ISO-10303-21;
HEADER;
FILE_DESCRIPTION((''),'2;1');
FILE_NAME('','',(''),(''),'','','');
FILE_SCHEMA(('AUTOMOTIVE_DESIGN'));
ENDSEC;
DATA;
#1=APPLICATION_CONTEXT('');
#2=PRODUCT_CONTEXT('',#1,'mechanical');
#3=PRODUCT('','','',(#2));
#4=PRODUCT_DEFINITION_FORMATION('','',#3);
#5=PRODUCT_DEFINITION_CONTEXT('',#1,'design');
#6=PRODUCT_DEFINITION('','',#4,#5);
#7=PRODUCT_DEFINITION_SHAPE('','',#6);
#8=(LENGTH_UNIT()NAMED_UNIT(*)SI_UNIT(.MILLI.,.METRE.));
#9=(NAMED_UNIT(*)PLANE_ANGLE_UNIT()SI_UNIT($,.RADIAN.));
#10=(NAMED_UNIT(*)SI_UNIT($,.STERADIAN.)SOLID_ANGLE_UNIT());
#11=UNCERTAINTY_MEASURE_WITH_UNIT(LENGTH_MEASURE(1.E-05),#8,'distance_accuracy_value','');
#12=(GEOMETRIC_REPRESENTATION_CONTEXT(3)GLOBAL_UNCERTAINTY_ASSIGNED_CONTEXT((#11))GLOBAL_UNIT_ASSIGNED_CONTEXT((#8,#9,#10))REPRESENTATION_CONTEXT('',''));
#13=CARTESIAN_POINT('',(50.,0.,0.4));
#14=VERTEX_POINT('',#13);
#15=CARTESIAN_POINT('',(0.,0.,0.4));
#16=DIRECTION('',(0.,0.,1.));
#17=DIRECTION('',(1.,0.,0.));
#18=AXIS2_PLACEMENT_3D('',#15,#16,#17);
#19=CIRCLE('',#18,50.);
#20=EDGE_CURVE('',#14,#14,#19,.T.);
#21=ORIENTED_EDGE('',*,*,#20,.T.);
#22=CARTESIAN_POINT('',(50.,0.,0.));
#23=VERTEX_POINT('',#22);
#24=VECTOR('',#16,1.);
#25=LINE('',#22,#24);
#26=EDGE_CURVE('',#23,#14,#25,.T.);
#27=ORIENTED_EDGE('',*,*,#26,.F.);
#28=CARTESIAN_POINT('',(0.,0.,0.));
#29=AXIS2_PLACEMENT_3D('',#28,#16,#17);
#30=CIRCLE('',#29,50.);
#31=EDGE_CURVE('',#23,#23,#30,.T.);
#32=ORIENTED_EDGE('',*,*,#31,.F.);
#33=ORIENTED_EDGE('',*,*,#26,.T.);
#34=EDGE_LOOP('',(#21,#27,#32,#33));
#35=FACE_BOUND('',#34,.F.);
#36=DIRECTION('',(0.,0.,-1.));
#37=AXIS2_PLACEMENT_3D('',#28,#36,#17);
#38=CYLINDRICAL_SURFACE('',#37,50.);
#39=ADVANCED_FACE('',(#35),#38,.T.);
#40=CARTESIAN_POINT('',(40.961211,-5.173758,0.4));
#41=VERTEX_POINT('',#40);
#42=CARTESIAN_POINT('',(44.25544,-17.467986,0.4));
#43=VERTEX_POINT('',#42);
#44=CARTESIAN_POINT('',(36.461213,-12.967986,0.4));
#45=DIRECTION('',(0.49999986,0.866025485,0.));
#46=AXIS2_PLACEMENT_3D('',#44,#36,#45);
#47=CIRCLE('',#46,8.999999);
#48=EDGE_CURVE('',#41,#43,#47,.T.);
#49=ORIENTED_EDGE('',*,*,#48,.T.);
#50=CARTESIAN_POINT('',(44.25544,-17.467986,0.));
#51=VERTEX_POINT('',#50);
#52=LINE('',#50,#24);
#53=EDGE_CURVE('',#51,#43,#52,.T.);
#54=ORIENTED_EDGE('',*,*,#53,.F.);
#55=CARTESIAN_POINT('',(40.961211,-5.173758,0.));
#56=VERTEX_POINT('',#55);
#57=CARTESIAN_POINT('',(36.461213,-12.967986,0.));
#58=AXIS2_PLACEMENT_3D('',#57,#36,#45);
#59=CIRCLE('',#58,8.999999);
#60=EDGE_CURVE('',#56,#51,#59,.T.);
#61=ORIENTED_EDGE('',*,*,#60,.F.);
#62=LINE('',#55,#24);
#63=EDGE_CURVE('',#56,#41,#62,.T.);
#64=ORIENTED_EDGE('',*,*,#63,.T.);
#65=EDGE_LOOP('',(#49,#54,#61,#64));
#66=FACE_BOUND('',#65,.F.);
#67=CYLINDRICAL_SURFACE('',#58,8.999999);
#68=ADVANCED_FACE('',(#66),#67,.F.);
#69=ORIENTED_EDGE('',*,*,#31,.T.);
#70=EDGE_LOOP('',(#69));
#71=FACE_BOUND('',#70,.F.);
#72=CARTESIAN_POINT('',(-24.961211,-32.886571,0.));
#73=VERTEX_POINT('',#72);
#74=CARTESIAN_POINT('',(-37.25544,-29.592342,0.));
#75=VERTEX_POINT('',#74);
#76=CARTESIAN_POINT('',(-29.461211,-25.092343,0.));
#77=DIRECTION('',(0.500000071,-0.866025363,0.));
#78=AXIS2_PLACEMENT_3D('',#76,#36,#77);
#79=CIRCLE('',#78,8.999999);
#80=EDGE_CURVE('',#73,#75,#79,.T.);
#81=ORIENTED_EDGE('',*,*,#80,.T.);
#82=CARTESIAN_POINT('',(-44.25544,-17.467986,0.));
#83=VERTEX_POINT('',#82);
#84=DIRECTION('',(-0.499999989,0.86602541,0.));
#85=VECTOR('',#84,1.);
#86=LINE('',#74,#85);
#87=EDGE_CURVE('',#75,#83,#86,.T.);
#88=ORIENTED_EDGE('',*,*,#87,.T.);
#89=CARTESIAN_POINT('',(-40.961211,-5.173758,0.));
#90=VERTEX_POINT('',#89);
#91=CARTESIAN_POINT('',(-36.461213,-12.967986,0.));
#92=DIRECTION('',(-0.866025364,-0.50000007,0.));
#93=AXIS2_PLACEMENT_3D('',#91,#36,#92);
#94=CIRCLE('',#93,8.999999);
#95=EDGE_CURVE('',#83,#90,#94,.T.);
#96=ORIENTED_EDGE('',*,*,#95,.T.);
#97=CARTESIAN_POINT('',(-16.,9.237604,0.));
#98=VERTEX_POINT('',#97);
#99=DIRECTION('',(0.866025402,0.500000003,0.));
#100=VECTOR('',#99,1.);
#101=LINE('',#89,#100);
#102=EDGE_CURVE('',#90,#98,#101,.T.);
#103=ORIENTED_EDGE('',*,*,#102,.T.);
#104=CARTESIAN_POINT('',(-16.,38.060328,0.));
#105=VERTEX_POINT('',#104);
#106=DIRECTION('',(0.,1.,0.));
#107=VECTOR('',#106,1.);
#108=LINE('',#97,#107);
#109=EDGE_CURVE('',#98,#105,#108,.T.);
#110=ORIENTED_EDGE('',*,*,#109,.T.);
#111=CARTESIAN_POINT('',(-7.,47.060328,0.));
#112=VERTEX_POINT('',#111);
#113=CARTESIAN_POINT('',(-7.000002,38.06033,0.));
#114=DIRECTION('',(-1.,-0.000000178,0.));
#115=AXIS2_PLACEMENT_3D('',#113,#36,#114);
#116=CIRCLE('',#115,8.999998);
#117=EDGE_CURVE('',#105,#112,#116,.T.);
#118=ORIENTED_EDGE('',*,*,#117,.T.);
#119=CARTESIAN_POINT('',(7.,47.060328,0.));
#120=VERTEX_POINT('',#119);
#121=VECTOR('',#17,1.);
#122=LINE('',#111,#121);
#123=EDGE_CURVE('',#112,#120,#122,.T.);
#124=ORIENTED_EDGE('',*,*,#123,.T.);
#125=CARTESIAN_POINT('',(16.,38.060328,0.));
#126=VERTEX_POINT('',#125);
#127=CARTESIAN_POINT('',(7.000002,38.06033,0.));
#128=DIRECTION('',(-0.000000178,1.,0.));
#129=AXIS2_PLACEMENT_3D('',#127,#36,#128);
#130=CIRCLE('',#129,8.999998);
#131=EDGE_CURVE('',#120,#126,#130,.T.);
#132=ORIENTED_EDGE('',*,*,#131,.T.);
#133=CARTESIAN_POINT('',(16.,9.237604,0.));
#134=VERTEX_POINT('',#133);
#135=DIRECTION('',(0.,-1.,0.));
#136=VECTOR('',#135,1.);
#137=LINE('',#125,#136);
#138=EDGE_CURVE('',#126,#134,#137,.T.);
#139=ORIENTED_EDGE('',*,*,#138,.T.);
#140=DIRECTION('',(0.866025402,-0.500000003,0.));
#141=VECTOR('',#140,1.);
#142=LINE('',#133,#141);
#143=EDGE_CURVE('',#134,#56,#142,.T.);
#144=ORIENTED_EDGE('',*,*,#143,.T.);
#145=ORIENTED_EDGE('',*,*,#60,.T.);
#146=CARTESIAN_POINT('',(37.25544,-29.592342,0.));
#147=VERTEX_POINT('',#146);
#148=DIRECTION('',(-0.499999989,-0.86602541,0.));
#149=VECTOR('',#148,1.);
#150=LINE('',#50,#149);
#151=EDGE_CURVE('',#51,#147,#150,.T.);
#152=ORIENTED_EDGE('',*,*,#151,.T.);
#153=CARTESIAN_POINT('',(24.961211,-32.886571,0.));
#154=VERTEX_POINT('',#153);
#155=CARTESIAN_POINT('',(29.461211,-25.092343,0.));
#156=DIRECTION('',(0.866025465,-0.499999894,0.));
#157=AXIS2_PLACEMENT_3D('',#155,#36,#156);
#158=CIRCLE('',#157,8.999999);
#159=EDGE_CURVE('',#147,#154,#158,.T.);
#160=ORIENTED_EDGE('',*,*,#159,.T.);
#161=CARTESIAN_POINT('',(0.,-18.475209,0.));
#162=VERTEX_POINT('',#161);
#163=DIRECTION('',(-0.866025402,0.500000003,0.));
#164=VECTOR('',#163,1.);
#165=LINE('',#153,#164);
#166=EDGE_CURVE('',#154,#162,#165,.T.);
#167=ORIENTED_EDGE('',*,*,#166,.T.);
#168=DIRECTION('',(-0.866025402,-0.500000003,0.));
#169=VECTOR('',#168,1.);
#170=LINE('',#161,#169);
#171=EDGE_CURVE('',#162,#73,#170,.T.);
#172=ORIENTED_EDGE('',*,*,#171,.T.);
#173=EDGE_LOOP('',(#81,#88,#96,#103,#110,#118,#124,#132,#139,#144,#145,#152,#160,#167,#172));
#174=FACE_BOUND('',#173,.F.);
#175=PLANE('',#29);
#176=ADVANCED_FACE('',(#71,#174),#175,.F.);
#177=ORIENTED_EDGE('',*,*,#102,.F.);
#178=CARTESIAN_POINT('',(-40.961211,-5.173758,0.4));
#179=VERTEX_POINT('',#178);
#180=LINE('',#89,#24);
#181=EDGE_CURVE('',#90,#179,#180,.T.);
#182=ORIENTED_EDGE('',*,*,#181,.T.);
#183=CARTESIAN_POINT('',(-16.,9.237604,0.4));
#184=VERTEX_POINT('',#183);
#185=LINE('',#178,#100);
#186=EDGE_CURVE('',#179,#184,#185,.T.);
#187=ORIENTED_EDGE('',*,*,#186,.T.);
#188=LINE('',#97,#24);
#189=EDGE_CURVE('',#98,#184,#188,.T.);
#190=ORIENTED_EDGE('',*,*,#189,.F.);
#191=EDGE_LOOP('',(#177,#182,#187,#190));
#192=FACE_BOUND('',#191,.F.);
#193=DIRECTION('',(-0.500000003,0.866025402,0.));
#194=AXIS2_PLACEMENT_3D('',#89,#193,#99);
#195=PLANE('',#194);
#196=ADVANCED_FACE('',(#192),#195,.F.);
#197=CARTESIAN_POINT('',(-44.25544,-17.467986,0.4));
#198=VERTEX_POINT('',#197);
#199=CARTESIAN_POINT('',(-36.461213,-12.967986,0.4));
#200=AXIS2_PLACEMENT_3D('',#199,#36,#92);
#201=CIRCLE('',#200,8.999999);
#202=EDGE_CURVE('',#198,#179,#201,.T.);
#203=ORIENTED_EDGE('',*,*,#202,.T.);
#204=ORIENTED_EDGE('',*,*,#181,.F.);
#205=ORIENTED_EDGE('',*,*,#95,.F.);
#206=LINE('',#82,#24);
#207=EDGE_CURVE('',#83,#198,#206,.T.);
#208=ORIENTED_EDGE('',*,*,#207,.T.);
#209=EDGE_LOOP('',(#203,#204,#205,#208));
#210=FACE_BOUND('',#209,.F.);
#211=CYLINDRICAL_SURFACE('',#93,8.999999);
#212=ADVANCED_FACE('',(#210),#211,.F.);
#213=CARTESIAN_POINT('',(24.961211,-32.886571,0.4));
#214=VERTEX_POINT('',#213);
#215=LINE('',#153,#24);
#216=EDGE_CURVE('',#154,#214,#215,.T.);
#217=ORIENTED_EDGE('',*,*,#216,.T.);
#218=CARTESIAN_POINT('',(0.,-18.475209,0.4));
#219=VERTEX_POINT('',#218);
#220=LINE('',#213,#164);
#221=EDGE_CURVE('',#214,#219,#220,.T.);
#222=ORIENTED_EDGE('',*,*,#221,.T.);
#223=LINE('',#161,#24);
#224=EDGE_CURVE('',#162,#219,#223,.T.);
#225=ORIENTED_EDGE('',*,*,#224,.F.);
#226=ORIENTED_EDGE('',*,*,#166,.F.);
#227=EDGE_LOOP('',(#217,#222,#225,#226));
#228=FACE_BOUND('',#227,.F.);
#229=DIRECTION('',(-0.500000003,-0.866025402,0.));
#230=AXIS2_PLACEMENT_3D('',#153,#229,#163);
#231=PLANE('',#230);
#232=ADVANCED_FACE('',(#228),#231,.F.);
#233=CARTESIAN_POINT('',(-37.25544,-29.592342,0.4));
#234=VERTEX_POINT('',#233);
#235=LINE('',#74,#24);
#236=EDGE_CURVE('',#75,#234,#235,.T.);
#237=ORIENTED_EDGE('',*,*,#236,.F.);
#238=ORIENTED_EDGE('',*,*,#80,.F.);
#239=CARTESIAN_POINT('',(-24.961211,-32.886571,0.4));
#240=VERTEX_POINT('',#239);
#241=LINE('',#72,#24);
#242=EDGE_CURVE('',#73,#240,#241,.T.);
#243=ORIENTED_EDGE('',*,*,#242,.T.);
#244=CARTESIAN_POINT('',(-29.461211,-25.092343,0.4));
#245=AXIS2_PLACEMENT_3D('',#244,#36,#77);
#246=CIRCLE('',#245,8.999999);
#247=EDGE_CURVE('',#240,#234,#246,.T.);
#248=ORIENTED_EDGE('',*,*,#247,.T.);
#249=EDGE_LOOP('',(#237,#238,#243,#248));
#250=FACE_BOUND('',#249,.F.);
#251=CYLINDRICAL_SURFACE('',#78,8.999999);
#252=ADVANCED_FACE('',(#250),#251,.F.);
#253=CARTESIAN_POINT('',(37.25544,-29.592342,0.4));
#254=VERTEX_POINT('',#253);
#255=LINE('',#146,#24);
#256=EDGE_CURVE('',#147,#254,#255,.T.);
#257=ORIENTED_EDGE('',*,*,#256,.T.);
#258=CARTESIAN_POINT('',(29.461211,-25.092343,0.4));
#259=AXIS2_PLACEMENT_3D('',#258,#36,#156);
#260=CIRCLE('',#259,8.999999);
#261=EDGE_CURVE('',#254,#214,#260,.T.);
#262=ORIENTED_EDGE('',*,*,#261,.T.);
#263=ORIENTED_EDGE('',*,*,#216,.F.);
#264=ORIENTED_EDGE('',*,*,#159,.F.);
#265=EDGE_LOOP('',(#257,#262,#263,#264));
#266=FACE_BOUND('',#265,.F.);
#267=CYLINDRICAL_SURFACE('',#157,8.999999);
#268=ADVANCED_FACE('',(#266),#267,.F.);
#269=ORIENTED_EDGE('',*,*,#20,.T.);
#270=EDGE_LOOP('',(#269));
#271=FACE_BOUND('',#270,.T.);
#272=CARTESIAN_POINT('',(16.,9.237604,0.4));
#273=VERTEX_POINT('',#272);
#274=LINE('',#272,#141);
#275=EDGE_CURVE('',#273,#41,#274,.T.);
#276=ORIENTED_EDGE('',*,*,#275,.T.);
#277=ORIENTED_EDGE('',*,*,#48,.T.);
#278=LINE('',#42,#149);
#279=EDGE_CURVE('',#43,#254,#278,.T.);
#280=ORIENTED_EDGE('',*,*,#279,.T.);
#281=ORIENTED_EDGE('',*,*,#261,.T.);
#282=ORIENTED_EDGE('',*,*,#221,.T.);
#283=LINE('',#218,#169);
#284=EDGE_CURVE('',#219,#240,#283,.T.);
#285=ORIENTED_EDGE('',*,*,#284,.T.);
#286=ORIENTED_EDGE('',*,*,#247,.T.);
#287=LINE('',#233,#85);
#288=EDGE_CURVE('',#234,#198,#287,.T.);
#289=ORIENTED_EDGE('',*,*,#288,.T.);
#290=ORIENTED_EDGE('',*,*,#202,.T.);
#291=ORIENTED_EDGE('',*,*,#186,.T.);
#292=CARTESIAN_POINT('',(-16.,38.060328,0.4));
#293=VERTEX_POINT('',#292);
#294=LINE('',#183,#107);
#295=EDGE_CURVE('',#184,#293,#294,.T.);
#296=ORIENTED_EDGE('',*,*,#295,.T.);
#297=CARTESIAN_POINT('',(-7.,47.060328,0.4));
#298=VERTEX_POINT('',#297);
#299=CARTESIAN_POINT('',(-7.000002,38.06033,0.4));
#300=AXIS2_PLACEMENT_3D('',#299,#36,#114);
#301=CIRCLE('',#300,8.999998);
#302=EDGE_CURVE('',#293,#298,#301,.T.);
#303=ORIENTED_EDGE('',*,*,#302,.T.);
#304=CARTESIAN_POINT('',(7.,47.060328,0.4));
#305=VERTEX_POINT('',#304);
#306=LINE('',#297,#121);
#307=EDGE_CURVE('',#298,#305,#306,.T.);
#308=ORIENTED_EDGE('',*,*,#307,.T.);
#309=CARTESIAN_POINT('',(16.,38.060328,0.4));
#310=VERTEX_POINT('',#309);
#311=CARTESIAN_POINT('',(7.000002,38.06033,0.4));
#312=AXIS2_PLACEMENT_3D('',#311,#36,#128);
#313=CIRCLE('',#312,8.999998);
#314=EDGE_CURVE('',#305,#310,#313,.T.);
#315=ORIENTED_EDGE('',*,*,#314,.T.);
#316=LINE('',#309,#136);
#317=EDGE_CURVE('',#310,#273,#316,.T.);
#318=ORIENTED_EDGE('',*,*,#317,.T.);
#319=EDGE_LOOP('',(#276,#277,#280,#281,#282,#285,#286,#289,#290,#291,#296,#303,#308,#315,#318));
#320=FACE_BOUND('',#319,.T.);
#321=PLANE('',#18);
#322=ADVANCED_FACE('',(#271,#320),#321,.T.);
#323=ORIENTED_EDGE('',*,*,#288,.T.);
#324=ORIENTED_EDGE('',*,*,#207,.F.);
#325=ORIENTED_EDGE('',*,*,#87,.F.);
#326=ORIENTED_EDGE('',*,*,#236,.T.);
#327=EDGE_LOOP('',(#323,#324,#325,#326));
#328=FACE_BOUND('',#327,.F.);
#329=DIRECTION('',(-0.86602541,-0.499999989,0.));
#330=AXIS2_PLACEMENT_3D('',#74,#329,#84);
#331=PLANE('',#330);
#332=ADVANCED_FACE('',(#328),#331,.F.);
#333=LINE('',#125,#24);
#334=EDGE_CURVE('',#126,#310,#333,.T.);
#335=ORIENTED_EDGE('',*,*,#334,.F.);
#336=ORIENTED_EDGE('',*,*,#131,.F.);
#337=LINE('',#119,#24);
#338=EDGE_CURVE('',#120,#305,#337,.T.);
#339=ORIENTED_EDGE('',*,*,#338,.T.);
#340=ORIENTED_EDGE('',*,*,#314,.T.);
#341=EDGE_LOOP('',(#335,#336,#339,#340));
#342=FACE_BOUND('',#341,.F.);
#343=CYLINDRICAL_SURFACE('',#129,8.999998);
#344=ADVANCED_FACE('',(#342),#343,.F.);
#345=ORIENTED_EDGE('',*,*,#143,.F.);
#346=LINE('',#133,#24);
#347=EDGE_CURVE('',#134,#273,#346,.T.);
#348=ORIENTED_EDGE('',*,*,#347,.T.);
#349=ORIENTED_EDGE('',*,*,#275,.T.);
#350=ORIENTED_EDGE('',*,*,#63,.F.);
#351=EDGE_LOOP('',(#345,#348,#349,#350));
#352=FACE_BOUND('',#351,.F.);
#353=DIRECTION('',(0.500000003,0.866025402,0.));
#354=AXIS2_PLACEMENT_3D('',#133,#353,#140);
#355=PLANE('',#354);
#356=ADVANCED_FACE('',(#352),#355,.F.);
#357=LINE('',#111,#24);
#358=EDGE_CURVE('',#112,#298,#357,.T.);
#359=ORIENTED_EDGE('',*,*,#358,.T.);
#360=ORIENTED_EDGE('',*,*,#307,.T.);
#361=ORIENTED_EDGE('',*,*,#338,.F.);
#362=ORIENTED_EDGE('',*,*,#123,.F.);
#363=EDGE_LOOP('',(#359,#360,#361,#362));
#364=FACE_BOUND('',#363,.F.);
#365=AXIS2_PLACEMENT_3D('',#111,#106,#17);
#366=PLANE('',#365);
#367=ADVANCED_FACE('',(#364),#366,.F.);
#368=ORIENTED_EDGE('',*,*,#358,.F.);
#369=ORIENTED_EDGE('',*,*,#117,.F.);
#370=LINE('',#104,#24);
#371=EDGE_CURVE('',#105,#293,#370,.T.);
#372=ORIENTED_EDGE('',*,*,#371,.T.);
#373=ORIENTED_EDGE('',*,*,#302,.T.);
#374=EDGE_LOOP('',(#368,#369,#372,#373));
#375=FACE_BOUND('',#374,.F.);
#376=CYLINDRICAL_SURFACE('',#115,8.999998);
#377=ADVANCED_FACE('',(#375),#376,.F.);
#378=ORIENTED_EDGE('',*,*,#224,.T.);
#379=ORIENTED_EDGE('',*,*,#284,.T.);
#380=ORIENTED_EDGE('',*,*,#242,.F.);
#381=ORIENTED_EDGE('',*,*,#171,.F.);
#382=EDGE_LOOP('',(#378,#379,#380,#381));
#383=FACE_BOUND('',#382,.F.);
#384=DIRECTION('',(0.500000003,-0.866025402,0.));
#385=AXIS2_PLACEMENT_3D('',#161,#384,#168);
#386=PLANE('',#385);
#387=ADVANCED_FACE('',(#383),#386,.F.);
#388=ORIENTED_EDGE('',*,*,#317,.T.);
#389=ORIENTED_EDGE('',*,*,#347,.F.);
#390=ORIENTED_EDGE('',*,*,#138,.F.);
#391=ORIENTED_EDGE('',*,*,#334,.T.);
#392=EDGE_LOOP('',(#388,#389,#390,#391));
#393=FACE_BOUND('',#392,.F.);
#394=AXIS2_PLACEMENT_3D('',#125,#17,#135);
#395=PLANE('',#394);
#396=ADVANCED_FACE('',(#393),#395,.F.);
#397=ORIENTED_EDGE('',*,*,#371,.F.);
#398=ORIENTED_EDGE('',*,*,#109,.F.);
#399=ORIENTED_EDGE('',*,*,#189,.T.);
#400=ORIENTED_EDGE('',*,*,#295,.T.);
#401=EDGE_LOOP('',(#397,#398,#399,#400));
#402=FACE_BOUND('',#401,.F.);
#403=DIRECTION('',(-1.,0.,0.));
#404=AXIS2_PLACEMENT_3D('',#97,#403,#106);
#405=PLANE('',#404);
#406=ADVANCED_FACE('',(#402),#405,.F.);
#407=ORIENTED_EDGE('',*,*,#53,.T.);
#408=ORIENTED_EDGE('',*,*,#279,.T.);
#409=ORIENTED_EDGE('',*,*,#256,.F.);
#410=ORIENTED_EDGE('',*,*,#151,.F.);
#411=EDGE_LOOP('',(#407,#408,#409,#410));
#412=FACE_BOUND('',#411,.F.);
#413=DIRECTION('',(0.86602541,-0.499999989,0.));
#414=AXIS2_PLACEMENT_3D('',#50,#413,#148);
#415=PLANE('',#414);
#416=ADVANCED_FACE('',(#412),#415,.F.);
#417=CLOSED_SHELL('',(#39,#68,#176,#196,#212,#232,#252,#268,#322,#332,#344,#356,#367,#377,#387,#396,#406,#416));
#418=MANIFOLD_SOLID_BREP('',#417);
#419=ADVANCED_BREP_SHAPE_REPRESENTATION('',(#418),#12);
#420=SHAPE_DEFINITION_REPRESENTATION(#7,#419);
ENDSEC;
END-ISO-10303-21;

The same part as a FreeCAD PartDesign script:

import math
import FreeCAD as App
import Part
import Sketcher
from FreeCAD import Vector
Q = App.Units.Quantity

doc = App.newDocument("Part")
params = doc.addObject("Spreadsheet::Sheet", "Params")
for row, (alias, value) in enumerate([
    ("sketch1_diameter", "100 mm"),
    ("sketch1_radius", "8.999999 mm"),
    ("sketch1_width", "14 mm"),
    ("pad1_length", "0.4 mm"),
], start=1):
    params.set(f"A{row}", alias)
    params.set(f"B{row}", "=" + value)
    params.setAlias(f"B{row}", alias)

body = doc.addObject("PartDesign::Body", "Body")

sketch1 = doc.addObject("Sketcher::SketchObject", "Sketch")
body.addObject(sketch1)
sketch1.AttachmentSupport = (doc.XY_Plane, [""])
sketch1.MapMode = "FlatFace"
sketch1.addGeometry(Part.Circle(Vector(0, 0, 0), Vector(0, 0, 1), 50), False)
sketch1.addGeometry(Part.ArcOfCircle(Part.Circle(Vector(-36.461213, -12.967986, 0), Vector(0, 0, 1), 8.999999), math.radians(119.999991), math.radians(210.000005)), False)
sketch1.addGeometry(Part.LineSegment(Vector(-40.961211, -5.173758, 0), Vector(-16, 9.237604, 0)), False)
sketch1.addGeometry(Part.LineSegment(Vector(-16, 9.237604, 0), Vector(-16, 38.060328, 0)), False)
sketch1.addGeometry(Part.ArcOfCircle(Part.Circle(Vector(-7.000002, 38.06033, 0), Vector(0, 0, 1), 8.999998), math.radians(89.99999), math.radians(180.00001)), False)
sketch1.addGeometry(Part.LineSegment(Vector(-7, 47.060328, 0), Vector(7, 47.060328, 0)), False)
sketch1.addGeometry(Part.ArcOfCircle(Part.Circle(Vector(7.000002, 38.06033, 0), Vector(0, 0, 1), 8.999998), math.radians(-0.00001), math.radians(90.00001)), False)
sketch1.addGeometry(Part.LineSegment(Vector(16, 38.060328, 0), Vector(16, 9.237604, 0)), False)
sketch1.addGeometry(Part.LineSegment(Vector(16, 9.237604, 0), Vector(40.961211, -5.173758, 0)), False)
sketch1.addGeometry(Part.ArcOfCircle(Part.Circle(Vector(36.461213, -12.967986, 0), Vector(0, 0, 1), 8.999999), math.radians(-30.000005), math.radians(60.000009)), False)
sketch1.addGeometry(Part.LineSegment(Vector(44.25544, -17.467986, 0), Vector(37.25544, -29.592342, 0)), False)
sketch1.addGeometry(Part.ArcOfCircle(Part.Circle(Vector(29.461211, -25.092343, 0), Vector(0, 0, 1), 8.999999), math.radians(-120.000005), math.radians(-29.999993)), False)
sketch1.addGeometry(Part.LineSegment(Vector(24.961211, -32.886571, 0), Vector(0, -18.475209, 0)), False)
sketch1.addGeometry(Part.LineSegment(Vector(0, -18.475209, 0), Vector(-24.961211, -32.886571, 0)), False)
sketch1.addGeometry(Part.ArcOfCircle(Part.Circle(Vector(-29.461211, -25.092343, 0), Vector(0, 0, 1), 8.999999), math.radians(-150.000007), math.radians(-59.999995)), False)
sketch1.addGeometry(Part.LineSegment(Vector(-37.25544, -29.592342, 0), Vector(-44.25544, -17.467986, 0)), False)
sketch1.addConstraint(Sketcher.Constraint("Tangent", 1, 1, 2, 1))
sketch1.addConstraint(Sketcher.Constraint("Coincident", 2, 2, 3, 1))
sketch1.addConstraint(Sketcher.Constraint("Tangent", 3, 2, 4, 2))
sketch1.addConstraint(Sketcher.Constraint("Tangent", 4, 1, 5, 1))
sketch1.addConstraint(Sketcher.Constraint("Tangent", 5, 2, 6, 2))
sketch1.addConstraint(Sketcher.Constraint("Tangent", 6, 1, 7, 1))
sketch1.addConstraint(Sketcher.Constraint("Coincident", 7, 2, 8, 1))
sketch1.addConstraint(Sketcher.Constraint("Tangent", 8, 2, 9, 2))
sketch1.addConstraint(Sketcher.Constraint("Tangent", 9, 1, 10, 1))
sketch1.addConstraint(Sketcher.Constraint("Tangent", 10, 2, 11, 2))
sketch1.addConstraint(Sketcher.Constraint("Tangent", 11, 1, 12, 1))
sketch1.addConstraint(Sketcher.Constraint("Coincident", 12, 2, 13, 1))
sketch1.addConstraint(Sketcher.Constraint("Tangent", 13, 2, 14, 2))
sketch1.addConstraint(Sketcher.Constraint("Tangent", 14, 1, 15, 1))
sketch1.addConstraint(Sketcher.Constraint("Tangent", 15, 2, 1, 2))
sketch1.addConstraint(Sketcher.Constraint("Vertical", 3))
sketch1.addConstraint(Sketcher.Constraint("Horizontal", 5))
sketch1.addConstraint(Sketcher.Constraint("Vertical", 7))
sketch1.addConstraint(Sketcher.Constraint("Coincident", 0, 3, -1, 1))
sketch1.addConstraint(Sketcher.Constraint("Equal", 1, 4))
sketch1.addConstraint(Sketcher.Constraint("Equal", 4, 6))
sketch1.addConstraint(Sketcher.Constraint("Equal", 6, 9))
sketch1.addConstraint(Sketcher.Constraint("Equal", 9, 11))
sketch1.addConstraint(Sketcher.Constraint("Equal", 11, 14))
sketch1.addConstraint(Sketcher.Constraint("Symmetric", 1, 3, 9, 3, -2))
sketch1.addConstraint(Sketcher.Constraint("Symmetric", 11, 3, 14, 3, -2))
sketch1.addConstraint(Sketcher.Constraint("Symmetric", 2, 2, 7, 2, -2))
sketch1.addConstraint(Sketcher.Constraint("PointOnObject", 12, 2, -2))
sketch1.addConstraint(Sketcher.Constraint("Perpendicular", 8, 10))
sketch1.addConstraint(Sketcher.Constraint("Perpendicular", 10, 12))
sketch1.addConstraint(Sketcher.Constraint("Equal", 8, 12))
sketch1.addConstraint(Sketcher.Constraint("Diameter", 0, Q("100 mm")))
sketch1.addConstraint(Sketcher.Constraint("Radius", 1, Q("8.999999 mm")))
sketch1.addConstraint(Sketcher.Constraint("DistanceX", 5, 1, 5, 2, Q("14 mm")))
sketch1.addConstraint(Sketcher.Constraint("Angle", 2, Q("30 deg")))
sketch1.addConstraint(Sketcher.Constraint("DistanceY", 3, 1, 3, 2, Q("28.822724 mm")))
sketch1.addConstraint(Sketcher.Constraint("DistanceY", -1, 1, 4, 3, Q("38.06033 mm")))
sketch1.addConstraint(Sketcher.Constraint("DistanceX", -1, 1, 11, 3, Q("29.461211 mm")))
sketch1.setExpression("Constraints[31]", "Params.sketch1_diameter")
sketch1.setExpression("Constraints[32]", "Params.sketch1_radius")
sketch1.setExpression("Constraints[33]", "Params.sketch1_width")
pad1 = doc.addObject("PartDesign::Pad", "Pad")
body.addObject(pad1)
pad1.Profile = sketch1
pad1.setExpression("Length", "Params.pad1_length")

doc.recompute()
